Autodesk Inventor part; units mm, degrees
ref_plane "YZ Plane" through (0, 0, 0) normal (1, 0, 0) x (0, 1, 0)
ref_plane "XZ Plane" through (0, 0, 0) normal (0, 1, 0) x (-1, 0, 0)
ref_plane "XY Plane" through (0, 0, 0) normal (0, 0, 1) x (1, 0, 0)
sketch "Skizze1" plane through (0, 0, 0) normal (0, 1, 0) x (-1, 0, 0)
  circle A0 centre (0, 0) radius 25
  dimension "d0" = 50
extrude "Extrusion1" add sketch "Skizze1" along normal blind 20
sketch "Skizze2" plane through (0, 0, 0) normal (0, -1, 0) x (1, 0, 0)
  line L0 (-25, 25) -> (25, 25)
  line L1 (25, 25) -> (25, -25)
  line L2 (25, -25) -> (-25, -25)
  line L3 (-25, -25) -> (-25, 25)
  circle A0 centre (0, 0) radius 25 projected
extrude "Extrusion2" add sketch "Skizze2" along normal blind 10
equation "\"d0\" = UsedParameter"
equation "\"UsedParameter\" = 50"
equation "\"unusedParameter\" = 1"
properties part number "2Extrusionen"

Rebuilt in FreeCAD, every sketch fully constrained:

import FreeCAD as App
import Part
import Sketcher
from FreeCAD import Vector


def add_polygon(sketch, points):
    """Adds a closed chain of lines whose ends are joined by coincident constraints."""
    first, n = sketch.GeometryCount, len(points)
    for a, b in zip(points, points[1:] + points[:1]):
        sketch.addGeometry(Part.LineSegment(App.Vector(*a, 0), App.Vector(*b, 0)), False)
    for i in range(n):
        sketch.addConstraint(Sketcher.Constraint("Coincident", first + i, 2, first + (i + 1) % n, 1))

doc = App.newDocument("Part")
body = doc.addObject("PartDesign::Body", "Body")

sketch1 = body.newObject("Sketcher::SketchObject", "Sketch")
sketch1.AttachmentSupport = (doc.getObject("XZ_Plane"), [""])
sketch1.MapMode = "FlatFace"
sketch1.addGeometry(Part.Circle(Vector(0, 0, 0), Vector(0, 0, 1), 25), False)
sketch1.addConstraint([
    Sketcher.Constraint("Coincident", 0, 3, -1, 1),
    Sketcher.Constraint("Diameter", 0, 50.0),
])
pad1 = body.newObject("PartDesign::Pad", "Pad")
pad1.Profile = sketch1
pad1.Length = 20
pad1.Reversed = True

sketch2 = body.newObject("Sketcher::SketchObject", "Sketch001")
sketch2.AttachmentSupport = (doc.getObject("XZ_Plane"), [""])
sketch2.MapMode = "FlatFace"
add_polygon(sketch2, [(-25, 25), (-25, -25), (25, -25), (25, 25)])
sketch2.addConstraint([
    Sketcher.Constraint("Vertical", 0),
    Sketcher.Constraint("Horizontal", 1),
    Sketcher.Constraint("Vertical", 2),
    Sketcher.Constraint("Horizontal", 3),
    Sketcher.Constraint("Symmetric", 0, 2, 2, 2, -1, 1),
    Sketcher.Constraint("Equal", 3, 0),
    Sketcher.Constraint("DistanceX", 1, 1, 1, 2, 50.0),
])
pad2 = body.newObject("PartDesign::Pad", "Pad001")
pad2.Profile = sketch2
pad2.Length = 10

doc.recompute()
